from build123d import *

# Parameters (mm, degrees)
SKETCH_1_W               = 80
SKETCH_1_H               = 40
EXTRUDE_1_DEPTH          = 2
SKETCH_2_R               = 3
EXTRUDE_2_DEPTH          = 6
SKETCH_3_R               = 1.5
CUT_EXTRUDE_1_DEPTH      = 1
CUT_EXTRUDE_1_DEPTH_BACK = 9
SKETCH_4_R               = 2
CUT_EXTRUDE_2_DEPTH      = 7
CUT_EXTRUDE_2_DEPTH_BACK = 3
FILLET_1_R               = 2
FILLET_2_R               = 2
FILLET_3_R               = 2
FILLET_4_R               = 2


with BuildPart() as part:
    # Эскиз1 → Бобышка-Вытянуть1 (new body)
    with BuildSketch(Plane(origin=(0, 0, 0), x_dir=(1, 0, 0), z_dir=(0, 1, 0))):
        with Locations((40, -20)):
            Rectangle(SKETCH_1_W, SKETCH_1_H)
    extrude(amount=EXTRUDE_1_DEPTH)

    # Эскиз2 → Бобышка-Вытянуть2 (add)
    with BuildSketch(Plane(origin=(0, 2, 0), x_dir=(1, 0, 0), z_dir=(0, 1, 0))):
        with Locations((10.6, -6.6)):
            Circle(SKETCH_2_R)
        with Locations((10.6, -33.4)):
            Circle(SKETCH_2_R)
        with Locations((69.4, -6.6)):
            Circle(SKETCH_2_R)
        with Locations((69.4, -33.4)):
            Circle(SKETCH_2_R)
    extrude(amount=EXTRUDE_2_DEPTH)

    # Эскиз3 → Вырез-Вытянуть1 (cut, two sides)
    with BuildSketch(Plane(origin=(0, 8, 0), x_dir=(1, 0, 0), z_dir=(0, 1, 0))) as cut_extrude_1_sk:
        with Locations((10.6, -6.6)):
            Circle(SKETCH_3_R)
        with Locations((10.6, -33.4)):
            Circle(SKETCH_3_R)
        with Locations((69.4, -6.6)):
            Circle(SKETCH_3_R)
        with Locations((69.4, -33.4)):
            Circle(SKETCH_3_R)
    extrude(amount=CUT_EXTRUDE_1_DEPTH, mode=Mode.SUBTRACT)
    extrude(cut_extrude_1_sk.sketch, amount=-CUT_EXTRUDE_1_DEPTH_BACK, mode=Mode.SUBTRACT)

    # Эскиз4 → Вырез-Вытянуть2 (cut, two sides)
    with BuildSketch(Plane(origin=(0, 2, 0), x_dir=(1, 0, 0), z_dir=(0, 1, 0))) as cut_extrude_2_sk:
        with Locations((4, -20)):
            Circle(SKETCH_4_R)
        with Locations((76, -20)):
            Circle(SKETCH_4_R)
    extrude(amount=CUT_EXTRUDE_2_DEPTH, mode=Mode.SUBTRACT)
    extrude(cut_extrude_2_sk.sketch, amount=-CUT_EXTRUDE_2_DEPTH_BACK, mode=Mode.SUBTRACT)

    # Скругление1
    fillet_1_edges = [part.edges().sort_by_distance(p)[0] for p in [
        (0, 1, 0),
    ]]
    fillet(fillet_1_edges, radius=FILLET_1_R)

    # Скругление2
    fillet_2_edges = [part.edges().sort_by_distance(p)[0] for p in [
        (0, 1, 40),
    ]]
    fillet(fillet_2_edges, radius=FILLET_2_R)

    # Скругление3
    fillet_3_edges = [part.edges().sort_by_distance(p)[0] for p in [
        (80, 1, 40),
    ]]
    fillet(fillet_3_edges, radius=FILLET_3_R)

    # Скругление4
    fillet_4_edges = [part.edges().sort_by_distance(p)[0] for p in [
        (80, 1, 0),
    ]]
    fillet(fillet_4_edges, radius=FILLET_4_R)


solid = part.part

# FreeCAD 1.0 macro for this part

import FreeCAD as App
import Part
import Sketcher
from FreeCAD import Vector
Q = App.Units.Quantity


def edges_at(feature, points):
    """Names of the edges that pass closest to the given points."""
    edges = feature.Shape.Edges
    near = lambda p: min(range(len(edges)), key=lambda i: edges[i].distToShape(Part.Vertex(*p))[0])
    return sorted({f"Edge{near(p) + 1}" for p in points})

doc = App.newDocument("Part")
params = doc.addObject("Spreadsheet::Sheet", "Params")
for row, (alias, value) in enumerate([
    ("sketch1_width", "80 mm"),
    ("sketch1_height", "40 mm"),
    ("pad1_length", "2 mm"),
    ("sketch2_diameter", "6 mm"),
    ("pad2_length", "6 mm"),
    ("sketch3_diameter", "3 mm"),
    ("sketch4_diameter", "4 mm"),
    ("fillet_radius", "2 mm"),
    ("fillet2_radius", "2 mm"),
    ("fillet3_radius", "2 mm"),
    ("fillet4_radius", "2 mm"),
], start=1):
    params.set(f"A{row}", alias)
    params.set(f"B{row}", "=" + value)
    params.setAlias(f"B{row}", alias)

body = doc.addObject("PartDesign::Body", "Body")

# Sketch on XZ plane
sketch1 = body.newObject("Sketcher::SketchObject", "Sketch")
sketch1.AttachmentSupport = (doc.getObject("XZ_Plane"), [""])
sketch1.MapMode = "FlatFace"
sketch1.addGeometry([
    Part.LineSegment(Vector(0, 0, 0), Vector(0, 40, 0)),
    Part.LineSegment(Vector(0, 40, 0), Vector(80, 40, 0)),
    Part.LineSegment(Vector(80, 40, 0), Vector(80, 0, 0)),
    Part.LineSegment(Vector(80, 0, 0), Vector(0, 0, 0)),
], False)
sketch1.addConstraint([
    Sketcher.Constraint("Coincident", 0, 2, 1, 1),
    Sketcher.Constraint("Coincident", 1, 2, 2, 1),
    Sketcher.Constraint("Coincident", 2, 2, 3, 1),
    Sketcher.Constraint("Coincident", 3, 2, 0, 1),
    Sketcher.Constraint("Vertical", 0),
    Sketcher.Constraint("Horizontal", 1),
    Sketcher.Constraint("Vertical", 2),
    Sketcher.Constraint("Horizontal", 3),
    Sketcher.Constraint("Coincident", 3, 2, -1, 1),
    Sketcher.Constraint("DistanceX", 1, 1, 1, 2, Q("80 mm")),
    Sketcher.Constraint("DistanceY", 0, 1, 0, 2, Q("40 mm")),
])
sketch1.setExpression("Constraints[9]", "Params.sketch1_width")
sketch1.setExpression("Constraints[10]", "Params.sketch1_height")
pad1 = body.newObject("PartDesign::Pad", "Pad")
pad1.Profile = sketch1
pad1.setExpression("Length", "Params.pad1_length")
pad1.Reversed = True

# Sketch on XZ plane
sketch2 = body.newObject("Sketcher::SketchObject", "Sketch001")
sketch2.AttachmentSupport = (doc.getObject("XZ_Plane"), [""])
sketch2.MapMode = "FlatFace"
sketch2.AttachmentOffset = App.Placement(Vector(0, 0, -2), App.Rotation())
sketch2.addGeometry([
    Part.Circle(Vector(10.6, 6.6, 0), Vector(0, 0, 1), 3),
    Part.Circle(Vector(10.6, 33.4, 0), Vector(0, 0, 1), 3),
    Part.Circle(Vector(69.4, 6.6, 0), Vector(0, 0, 1), 3),
    Part.Circle(Vector(69.4, 33.4, 0), Vector(0, 0, 1), 3),
], False)
sketch2.addConstraint([
    Sketcher.Constraint("Equal", 0, 1),
    Sketcher.Constraint("Equal", 1, 2),
    Sketcher.Constraint("Equal", 2, 3),
    Sketcher.Constraint("Horizontal", 0, 3, 2, 3),
    Sketcher.Constraint("Horizontal", 1, 3, 3, 3),
    Sketcher.Constraint("Vertical", 0, 3, 1, 3),
    Sketcher.Constraint("Vertical", 2, 3, 3, 3),
    Sketcher.Constraint("Diameter", 0, Q("6 mm")),
    Sketcher.Constraint("DistanceX", -1, 1, 0, 3, Q("10.6 mm")),
    Sketcher.Constraint("DistanceY", -1, 1, 0, 3, Q("6.6 mm")),
    Sketcher.Constraint("DistanceY", -1, 1, 1, 3, Q("33.4 mm")),
    Sketcher.Constraint("DistanceX", -1, 1, 2, 3, Q("69.4 mm")),
])
sketch2.setExpression("Constraints[7]", "Params.sketch2_diameter")
pad2 = body.newObject("PartDesign::Pad", "Pad001")
pad2.Profile = sketch2
pad2.setExpression("Length", "Params.pad2_length")
pad2.Reversed = True

# Sketch on XZ plane
sketch3 = body.newObject("Sketcher::SketchObject", "Sketch002")
sketch3.AttachmentSupport = (doc.getObject("XZ_Plane"), [""])
sketch3.MapMode = "FlatFace"
sketch3.AttachmentOffset = App.Placement(Vector(0, 0, -8), App.Rotation())
sketch3.addGeometry([
    Part.Circle(Vector(10.6, 6.6, 0), Vector(0, 0, 1), 1.5),
    Part.Circle(Vector(10.6, 33.4, 0), Vector(0, 0, 1), 1.5),
    Part.Circle(Vector(69.4, 6.6, 0), Vector(0, 0, 1), 1.5),
    Part.Circle(Vector(69.4, 33.4, 0), Vector(0, 0, 1), 1.5),
], False)
sketch3.addConstraint([
    Sketcher.Constraint("Equal", 0, 1),
    Sketcher.Constraint("Equal", 1, 2),
    Sketcher.Constraint("Equal", 2, 3),
    Sketcher.Constraint("Horizontal", 0, 3, 2, 3),
    Sketcher.Constraint("Horizontal", 1, 3, 3, 3),
    Sketcher.Constraint("Vertical", 0, 3, 1, 3),
    Sketcher.Constraint("Vertical", 2, 3, 3, 3),
    Sketcher.Constraint("Diameter", 0, Q("3 mm")),
    Sketcher.Constraint("DistanceX", -1, 1, 0, 3, Q("10.6 mm")),
    Sketcher.Constraint("DistanceY", -1, 1, 0, 3, Q("6.6 mm")),
    Sketcher.Constraint("DistanceY", -1, 1, 1, 3, Q("33.4 mm")),
    Sketcher.Constraint("DistanceX", -1, 1, 2, 3, Q("69.4 mm")),
])
sketch3.setExpression("Constraints[7]", "Params.sketch3_diameter")
pocket1 = body.newObject("PartDesign::Pocket", "Pocket")
pocket1.Profile = sketch3
pocket1.Type = "ThroughAll"
pocket1.Midplane = True

# Sketch on XZ plane
sketch4 = body.newObject("Sketcher::SketchObject", "Sketch003")
sketch4.AttachmentSupport = (doc.getObject("XZ_Plane"), [""])
sketch4.MapMode = "FlatFace"
sketch4.AttachmentOffset = App.Placement(Vector(0, 0, -2), App.Rotation())
sketch4.addGeometry([
    Part.Circle(Vector(4, 20, 0), Vector(0, 0, 1), 2),
    Part.Circle(Vector(76, 20, 0), Vector(0, 0, 1), 2),
], False)
sketch4.addConstraint([
    Sketcher.Constraint("Equal", 0, 1),
    Sketcher.Constraint("Horizontal", 0, 3, 1, 3),
    Sketcher.Constraint("Diameter", 0, Q("4 mm")),
    Sketcher.Constraint("DistanceX", -1, 1, 0, 3, Q("4 mm")),
    Sketcher.Constraint("DistanceY", -1, 1, 0, 3, Q("20 mm")),
    Sketcher.Constraint("DistanceX", -1, 1, 1, 3, Q("76 mm")),
])
sketch4.setExpression("Constraints[2]", "Params.sketch4_diameter")
pocket2 = body.newObject("PartDesign::Pocket", "Pocket001")
pocket2.Profile = sketch4
pocket2.Type = "ThroughAll"
pocket2.Midplane = True
doc.recompute()

fillet = body.newObject("PartDesign::Fillet", "Fillet")
fillet.Base = (pocket2, edges_at(pocket2, [(0, 1, 0)]))
fillet.setExpression("Radius", "Params.fillet_radius")
doc.recompute()

fillet2 = body.newObject("PartDesign::Fillet", "Fillet001")
fillet2.Base = (fillet, edges_at(fillet, [(0, 1, 40)]))
fillet2.setExpression("Radius", "Params.fillet2_radius")
doc.recompute()

fillet3 = body.newObject("PartDesign::Fillet", "Fillet002")
fillet3.Base = (fillet2, edges_at(fillet2, [(80, 1, 40)]))
fillet3.setExpression("Radius", "Params.fillet3_radius")
doc.recompute()

fillet4 = body.newObject("PartDesign::Fillet", "Fillet003")
fillet4.Base = (fillet3, edges_at(fillet3, [(80, 1, 0)]))
fillet4.setExpression("Radius", "Params.fillet4_radius")

doc.recompute()
